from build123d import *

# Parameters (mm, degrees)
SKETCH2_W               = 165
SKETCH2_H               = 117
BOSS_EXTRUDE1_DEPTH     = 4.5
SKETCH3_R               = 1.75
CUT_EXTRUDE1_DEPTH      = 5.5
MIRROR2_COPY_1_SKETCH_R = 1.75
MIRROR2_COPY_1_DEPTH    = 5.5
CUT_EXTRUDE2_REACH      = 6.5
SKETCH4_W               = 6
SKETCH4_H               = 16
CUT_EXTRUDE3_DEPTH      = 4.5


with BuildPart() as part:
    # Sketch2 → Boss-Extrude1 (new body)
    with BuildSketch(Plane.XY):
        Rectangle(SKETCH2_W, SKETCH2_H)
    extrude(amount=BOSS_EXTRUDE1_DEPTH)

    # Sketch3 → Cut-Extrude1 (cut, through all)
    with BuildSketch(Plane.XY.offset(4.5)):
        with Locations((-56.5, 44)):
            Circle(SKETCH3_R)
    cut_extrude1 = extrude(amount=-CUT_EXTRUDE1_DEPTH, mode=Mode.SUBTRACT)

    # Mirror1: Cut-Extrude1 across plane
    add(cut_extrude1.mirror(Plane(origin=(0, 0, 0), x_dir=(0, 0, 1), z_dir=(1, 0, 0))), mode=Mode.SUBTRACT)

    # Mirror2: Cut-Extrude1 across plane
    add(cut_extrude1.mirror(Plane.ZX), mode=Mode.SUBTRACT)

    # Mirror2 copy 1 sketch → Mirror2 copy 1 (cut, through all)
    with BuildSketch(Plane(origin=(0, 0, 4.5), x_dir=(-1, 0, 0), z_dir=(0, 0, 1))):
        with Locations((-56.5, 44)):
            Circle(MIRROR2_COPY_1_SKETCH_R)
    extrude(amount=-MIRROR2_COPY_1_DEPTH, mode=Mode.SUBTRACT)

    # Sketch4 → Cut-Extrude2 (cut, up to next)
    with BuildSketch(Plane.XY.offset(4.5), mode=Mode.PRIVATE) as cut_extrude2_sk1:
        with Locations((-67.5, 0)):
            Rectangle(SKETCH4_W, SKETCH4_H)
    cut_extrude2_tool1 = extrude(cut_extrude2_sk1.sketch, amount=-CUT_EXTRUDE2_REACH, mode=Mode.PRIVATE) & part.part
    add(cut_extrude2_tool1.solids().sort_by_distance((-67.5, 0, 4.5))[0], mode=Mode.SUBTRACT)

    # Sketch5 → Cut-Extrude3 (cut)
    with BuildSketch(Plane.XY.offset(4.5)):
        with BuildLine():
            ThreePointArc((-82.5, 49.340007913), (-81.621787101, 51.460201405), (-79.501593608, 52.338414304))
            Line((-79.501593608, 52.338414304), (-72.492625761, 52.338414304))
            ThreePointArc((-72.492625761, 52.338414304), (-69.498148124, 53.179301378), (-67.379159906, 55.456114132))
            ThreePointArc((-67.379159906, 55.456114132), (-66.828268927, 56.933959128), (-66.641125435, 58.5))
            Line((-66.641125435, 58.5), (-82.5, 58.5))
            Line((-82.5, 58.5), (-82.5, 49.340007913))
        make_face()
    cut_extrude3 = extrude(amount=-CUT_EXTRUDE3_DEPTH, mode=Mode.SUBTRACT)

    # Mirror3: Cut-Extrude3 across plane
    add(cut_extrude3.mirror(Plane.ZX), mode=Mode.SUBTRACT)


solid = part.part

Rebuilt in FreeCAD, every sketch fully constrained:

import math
import FreeCAD as App
import Part
import Sketcher
from FreeCAD import Vector


def add_polygon(sketch, points):
    """Adds a closed chain of lines whose ends are joined by coincident constraints."""
    first, n = sketch.GeometryCount, len(points)
    for a, b in zip(points, points[1:] + points[:1]):
        sketch.addGeometry(Part.LineSegment(App.Vector(*a, 0), App.Vector(*b, 0)), False)
    for i in range(n):
        sketch.addConstraint(Sketcher.Constraint("Coincident", first + i, 2, first + (i + 1) % n, 1))

doc = App.newDocument("Part")
body = doc.addObject("PartDesign::Body", "Body")

# Sketch on XY plane
sketch1 = body.newObject("Sketcher::SketchObject", "Sketch")
sketch1.AttachmentSupport = (doc.getObject("XY_Plane"), [""])
sketch1.MapMode = "FlatFace"
add_polygon(sketch1, [(-82, 58), (-82, -58), (82, -58), (82, 58)])  # lines 0-3
sketch1.addConstraint(Sketcher.Constraint("Vertical", 0))
sketch1.addConstraint(Sketcher.Constraint("Horizontal", 1))
sketch1.addConstraint(Sketcher.Constraint("Vertical", 2))
sketch1.addConstraint(Sketcher.Constraint("Horizontal", 3))
sketch1.addConstraint(Sketcher.Constraint("Symmetric", 0, 2, 2, 2, -1, 1))
sketch1.addConstraint(Sketcher.Constraint("DistanceX", 1, 1, 1, 2, 165.0))
sketch1.addConstraint(Sketcher.Constraint("DistanceY", 0, 2, 0, 1, 117.0))
pad1 = body.newObject("PartDesign::Pad", "Pad")
pad1.Profile = sketch1
pad1.Length = 4.5

# Sketch on XY plane
sketch2 = body.newObject("Sketcher::SketchObject", "Sketch001")
sketch2.AttachmentSupport = (doc.getObject("XY_Plane"), [""])
sketch2.MapMode = "FlatFace"
sketch2.AttachmentOffset = App.Placement(Vector(0, 0, 4.5), App.Rotation())
sketch2.addGeometry(Part.Circle(Vector(-56.5, 44, 0), Vector(0, 0, 1), 1.8), False)
sketch2.addConstraint(Sketcher.Constraint("Diameter", 0, 3.5))
sketch2.addConstraint(Sketcher.Constraint("DistanceY", -1, 1, 0, 3, 44.0))
sketch2.addConstraint(Sketcher.Constraint("DistanceX", 0, 3, -1, 1, 56.5))
pocket1 = body.newObject("PartDesign::Pocket", "Pocket")
pocket1.Profile = sketch2
pocket1.Type = "ThroughAll"
doc.recompute()

mirrored = body.newObject("PartDesign::Mirrored", "Mirrored")
mirrored.Originals = [pocket1]
mirrored.MirrorPlane = (doc.getObject("YZ_Plane"), [""])
body.Tip = mirrored
doc.recompute()

mirrored2 = body.newObject("PartDesign::Mirrored", "Mirrored001")
mirrored2.Originals = [pocket1]
mirrored2.MirrorPlane = (doc.getObject("XZ_Plane"), [""])
body.Tip = mirrored2

# Sketch on XY plane
sketch3 = body.newObject("Sketcher::SketchObject", "Sketch002")
sketch3.AttachmentSupport = (doc.getObject("XY_Plane"), [""])
sketch3.MapMode = "FlatFace"
sketch3.AttachmentOffset = App.Placement(Vector(0, 0, 4.5), App.Rotation())
sketch3.addGeometry(Part.Circle(Vector(56.5, -44, 0), Vector(0, 0, 1), 1.8), False)
sketch3.addConstraint(Sketcher.Constraint("Diameter", 0, 3.5))
sketch3.addConstraint(Sketcher.Constraint("DistanceY", 0, 3, -1, 1, 44.0))
sketch3.addConstraint(Sketcher.Constraint("DistanceX", -1, 1, 0, 3, 56.5))
pocket2 = body.newObject("PartDesign::Pocket", "Pocket001")
pocket2.Profile = sketch3
pocket2.Type = "ThroughAll"

# Sketch on XY plane
sketch4 = body.newObject("Sketcher::SketchObject", "Sketch003")
sketch4.AttachmentSupport = (doc.getObject("XY_Plane"), [""])
sketch4.MapMode = "FlatFace"
sketch4.AttachmentOffset = App.Placement(Vector(0, 0, 4.5), App.Rotation())
add_polygon(sketch4, [(-70, 8), (-70, -8), (-64, -8), (-64, 8)])  # lines 0-3
sketch4.addConstraint(Sketcher.Constraint("Vertical", 0))
sketch4.addConstraint(Sketcher.Constraint("Horizontal", 1))
sketch4.addConstraint(Sketcher.Constraint("Vertical", 2))
sketch4.addConstraint(Sketcher.Constraint("Horizontal", 3))
sketch4.addConstraint(Sketcher.Constraint("DistanceX", 1, 1, 1, 2, 6.0))
sketch4.addConstraint(Sketcher.Constraint("DistanceY", 0, 2, 0, 1, 16.0))
sketch4.addConstraint(Sketcher.Constraint("DistanceY", 0, 2, -1, 1, 8.0))
sketch4.addConstraint(Sketcher.Constraint("DistanceX", 0, 2, -1, 1, 70.5))
pocket3 = body.newObject("PartDesign::Pocket", "Pocket002")
pocket3.Profile = sketch4
pocket3.Type = "UpToFirst"

# Sketch on XY plane
sketch5 = body.newObject("Sketcher::SketchObject", "Sketch004")
sketch5.AttachmentSupport = (doc.getObject("XY_Plane"), [""])
sketch5.MapMode = "FlatFace"
sketch5.AttachmentOffset = App.Placement(Vector(0, 0, 4.5), App.Rotation())
sketch5.addGeometry(Part.ArcOfCircle(Part.Circle(Vector(-79.5, 49.3, 0), Vector(0, 0, 1), 3), math.radians(90), math.radians(180)), False)
sketch5.addGeometry(Part.LineSegment(Vector(-79.5, 52.3, 0), Vector(-72.5, 52.3, 0)), False)
sketch5.addGeometry(Part.ArcOfCircle(Part.Circle(Vector(-72.5, 58.1, 0), Vector(0, 0, 1), 5.8), math.radians(-90), math.radians(-27)), False)
sketch5.addGeometry(Part.ArcOfCircle(Part.Circle(Vector(-73.3, 58.5, 0), Vector(0, 0, 1), 6.6), math.radians(-27), math.radians(0)), False)
sketch5.addGeometry(Part.LineSegment(Vector(-66.6, 58.5, 0), Vector(-82.5, 58.5, 0)), False)
sketch5.addGeometry(Part.LineSegment(Vector(-82.5, 58.5, 0), Vector(-82.5, 49.3, 0)), False)
sketch5.addConstraint(Sketcher.Constraint("Tangent", 0, 1, 1, 1))
sketch5.addConstraint(Sketcher.Constraint("Tangent", 1, 2, 2, 1))
sketch5.addConstraint(Sketcher.Constraint("Tangent", 2, 2, 3, 1))
sketch5.addConstraint(Sketcher.Constraint("Coincident", 3, 2, 4, 1))
sketch5.addConstraint(Sketcher.Constraint("Coincident", 4, 2, 5, 1))
sketch5.addConstraint(Sketcher.Constraint("Tangent", 5, 2, 0, 2))
sketch5.addConstraint(Sketcher.Constraint("Horizontal", 1))
sketch5.addConstraint(Sketcher.Constraint("Horizontal", 4))
sketch5.addConstraint(Sketcher.Constraint("Vertical", 5))
sketch5.addConstraint(Sketcher.Constraint("DistanceY", -1, 1, 3, 3, 58.5))
sketch5.addConstraint(Sketcher.Constraint("DistanceY", -1, 1, 3, 2, 58.5))
sketch5.addConstraint(Sketcher.Constraint("DistanceX", 4, 2, -1, 1, 82.5))
sketch5.addConstraint(Sketcher.Constraint("Radius", 2, 5.752251))
sketch5.addConstraint(Sketcher.Constraint("Radius", 0, 2.998406))
sketch5.addConstraint(Sketcher.Constraint("Radius", 3, 6.645988))
sketch5.addConstraint(Sketcher.Constraint("DistanceY", 1, 2, 2, 2, 3.1177))
sketch5.addConstraint(Sketcher.Constraint("DistanceX", 1, 1, 1, 2, 7.008968))
pocket4 = body.newObject("PartDesign::Pocket", "Pocket003")
pocket4.Profile = sketch5
pocket4.Length = 4.5
doc.recompute()

mirrored3 = body.newObject("PartDesign::Mirrored", "Mirrored002")
mirrored3.Originals = [pocket4]
mirrored3.MirrorPlane = (doc.getObject("XZ_Plane"), [""])
body.Tip = mirrored3

doc.recompute()
